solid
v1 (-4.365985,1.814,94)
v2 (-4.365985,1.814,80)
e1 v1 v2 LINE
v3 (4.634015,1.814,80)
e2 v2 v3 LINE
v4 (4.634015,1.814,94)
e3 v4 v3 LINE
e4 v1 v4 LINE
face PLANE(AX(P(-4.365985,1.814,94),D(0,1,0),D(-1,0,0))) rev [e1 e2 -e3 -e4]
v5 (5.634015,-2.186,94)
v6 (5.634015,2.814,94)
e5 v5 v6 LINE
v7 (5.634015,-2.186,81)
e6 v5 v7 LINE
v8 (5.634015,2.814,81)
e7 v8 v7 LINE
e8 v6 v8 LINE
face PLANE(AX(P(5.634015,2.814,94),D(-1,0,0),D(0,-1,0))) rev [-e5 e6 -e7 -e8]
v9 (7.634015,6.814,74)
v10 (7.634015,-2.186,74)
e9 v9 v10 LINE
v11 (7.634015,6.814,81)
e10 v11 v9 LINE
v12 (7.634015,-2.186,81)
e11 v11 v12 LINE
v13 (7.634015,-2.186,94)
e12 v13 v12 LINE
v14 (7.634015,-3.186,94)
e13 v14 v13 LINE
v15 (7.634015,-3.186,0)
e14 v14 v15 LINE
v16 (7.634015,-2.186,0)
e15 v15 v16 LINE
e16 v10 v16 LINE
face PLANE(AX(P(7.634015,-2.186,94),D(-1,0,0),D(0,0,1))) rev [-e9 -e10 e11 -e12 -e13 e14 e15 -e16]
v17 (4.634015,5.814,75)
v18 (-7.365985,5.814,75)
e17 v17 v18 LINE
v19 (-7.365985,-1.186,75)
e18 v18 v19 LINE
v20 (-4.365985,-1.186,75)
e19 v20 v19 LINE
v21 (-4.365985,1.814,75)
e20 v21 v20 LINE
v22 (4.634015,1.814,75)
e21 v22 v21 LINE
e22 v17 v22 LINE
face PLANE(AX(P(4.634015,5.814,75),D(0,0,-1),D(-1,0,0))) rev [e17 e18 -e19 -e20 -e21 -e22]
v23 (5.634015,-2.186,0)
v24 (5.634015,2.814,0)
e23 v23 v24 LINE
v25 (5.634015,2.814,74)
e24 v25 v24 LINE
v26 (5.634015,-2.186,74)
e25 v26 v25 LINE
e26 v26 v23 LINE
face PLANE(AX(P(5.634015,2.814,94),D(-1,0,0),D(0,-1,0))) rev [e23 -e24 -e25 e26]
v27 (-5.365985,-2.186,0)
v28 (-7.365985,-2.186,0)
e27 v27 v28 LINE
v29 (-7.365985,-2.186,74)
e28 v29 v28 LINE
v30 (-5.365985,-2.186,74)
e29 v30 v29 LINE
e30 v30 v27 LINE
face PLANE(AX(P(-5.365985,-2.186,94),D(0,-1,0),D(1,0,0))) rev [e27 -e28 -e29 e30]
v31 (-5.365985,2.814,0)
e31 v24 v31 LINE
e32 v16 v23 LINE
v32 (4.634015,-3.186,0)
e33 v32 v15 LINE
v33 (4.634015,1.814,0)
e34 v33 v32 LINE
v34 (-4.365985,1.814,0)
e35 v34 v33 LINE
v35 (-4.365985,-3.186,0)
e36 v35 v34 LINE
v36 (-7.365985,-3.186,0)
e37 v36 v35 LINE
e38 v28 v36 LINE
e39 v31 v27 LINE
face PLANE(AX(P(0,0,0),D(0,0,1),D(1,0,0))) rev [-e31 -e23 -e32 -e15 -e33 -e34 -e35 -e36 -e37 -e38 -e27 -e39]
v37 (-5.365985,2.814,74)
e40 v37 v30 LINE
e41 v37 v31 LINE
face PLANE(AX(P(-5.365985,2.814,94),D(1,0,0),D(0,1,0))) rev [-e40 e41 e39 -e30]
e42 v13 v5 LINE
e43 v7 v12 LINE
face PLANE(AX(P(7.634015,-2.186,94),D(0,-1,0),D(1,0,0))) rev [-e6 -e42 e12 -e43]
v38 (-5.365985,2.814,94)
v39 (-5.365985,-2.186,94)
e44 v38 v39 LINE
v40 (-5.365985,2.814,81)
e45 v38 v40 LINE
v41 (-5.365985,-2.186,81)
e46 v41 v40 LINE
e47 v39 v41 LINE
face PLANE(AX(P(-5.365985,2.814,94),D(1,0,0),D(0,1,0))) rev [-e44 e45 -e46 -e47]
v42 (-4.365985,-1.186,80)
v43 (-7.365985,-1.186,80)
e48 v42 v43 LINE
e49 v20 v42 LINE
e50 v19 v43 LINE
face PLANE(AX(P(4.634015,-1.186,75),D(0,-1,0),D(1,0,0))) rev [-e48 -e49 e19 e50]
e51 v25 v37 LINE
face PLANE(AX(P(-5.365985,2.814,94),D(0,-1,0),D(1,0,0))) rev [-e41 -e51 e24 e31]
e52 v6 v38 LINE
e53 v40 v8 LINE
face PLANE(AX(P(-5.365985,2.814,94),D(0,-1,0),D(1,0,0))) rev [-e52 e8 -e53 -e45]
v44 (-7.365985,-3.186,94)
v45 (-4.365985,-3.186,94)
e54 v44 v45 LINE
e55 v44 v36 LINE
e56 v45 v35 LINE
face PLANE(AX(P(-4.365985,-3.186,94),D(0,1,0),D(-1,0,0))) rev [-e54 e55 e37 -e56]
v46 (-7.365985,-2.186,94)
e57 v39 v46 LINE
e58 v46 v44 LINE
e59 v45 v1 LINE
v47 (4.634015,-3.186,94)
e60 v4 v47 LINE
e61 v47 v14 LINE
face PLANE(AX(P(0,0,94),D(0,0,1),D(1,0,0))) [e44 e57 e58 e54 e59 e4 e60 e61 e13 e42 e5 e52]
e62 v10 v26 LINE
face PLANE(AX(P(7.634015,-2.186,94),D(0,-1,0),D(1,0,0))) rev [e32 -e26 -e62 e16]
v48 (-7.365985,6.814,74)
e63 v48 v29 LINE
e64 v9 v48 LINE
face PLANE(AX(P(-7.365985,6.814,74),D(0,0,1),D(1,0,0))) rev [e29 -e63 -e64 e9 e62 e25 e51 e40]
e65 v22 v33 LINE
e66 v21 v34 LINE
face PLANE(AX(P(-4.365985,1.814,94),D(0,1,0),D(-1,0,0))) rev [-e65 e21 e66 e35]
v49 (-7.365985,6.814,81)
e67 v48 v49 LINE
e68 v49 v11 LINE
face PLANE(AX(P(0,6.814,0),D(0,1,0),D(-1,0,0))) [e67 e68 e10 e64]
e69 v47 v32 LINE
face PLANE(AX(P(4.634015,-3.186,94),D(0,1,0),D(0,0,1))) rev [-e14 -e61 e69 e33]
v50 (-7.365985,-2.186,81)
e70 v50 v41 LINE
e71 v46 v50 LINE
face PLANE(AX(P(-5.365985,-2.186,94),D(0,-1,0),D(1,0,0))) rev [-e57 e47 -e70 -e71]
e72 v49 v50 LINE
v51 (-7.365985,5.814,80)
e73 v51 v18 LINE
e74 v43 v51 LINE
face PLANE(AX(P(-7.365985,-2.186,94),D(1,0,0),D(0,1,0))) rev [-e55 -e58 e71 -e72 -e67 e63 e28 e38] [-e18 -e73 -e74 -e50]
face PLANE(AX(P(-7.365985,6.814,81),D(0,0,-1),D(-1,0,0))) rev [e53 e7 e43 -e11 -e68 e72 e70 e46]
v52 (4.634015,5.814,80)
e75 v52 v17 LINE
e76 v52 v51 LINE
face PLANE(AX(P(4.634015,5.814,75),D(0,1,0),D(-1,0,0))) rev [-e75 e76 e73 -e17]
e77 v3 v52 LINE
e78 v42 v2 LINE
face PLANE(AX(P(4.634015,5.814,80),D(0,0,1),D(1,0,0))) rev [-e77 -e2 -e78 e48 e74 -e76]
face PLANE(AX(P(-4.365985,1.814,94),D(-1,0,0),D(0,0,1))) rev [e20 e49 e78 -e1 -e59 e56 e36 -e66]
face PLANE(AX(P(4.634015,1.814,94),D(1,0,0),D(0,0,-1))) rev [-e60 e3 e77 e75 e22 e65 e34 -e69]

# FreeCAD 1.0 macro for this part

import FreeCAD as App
import Part
import Sketcher

V = App.Vector
Q = App.Units.Quantity


def add_polygon(sketch, points):
    """Adds a closed chain of lines whose ends are joined by coincident constraints."""
    first, n = sketch.GeometryCount, len(points)
    for a, b in zip(points, points[1:] + points[:1]):
        sketch.addGeometry(Part.LineSegment(App.Vector(*a, 0), App.Vector(*b, 0)), False)
    for i in range(n):
        sketch.addConstraint(Sketcher.Constraint("Coincident", first + i, 2, first + (i + 1) % n, 1))

doc = App.newDocument("Part")
body = doc.addObject("PartDesign::Body", "Body")

# Sketch on XY plane
sketch1 = body.newObject("Sketcher::SketchObject", "Sketch")
sketch1.AttachmentSupport = (doc.getObject("XY_Plane"), [""])
sketch1.MapMode = "FlatFace"
add_polygon(sketch1, [(-5.4, -2.2), (-7.4, -2.2), (-7.4, -3.2), (-4.4, -3.2), (-4.4, 1.8), (4.6, 1.8), (4.6, -3.2), (7.6, -3.2), (7.6, -2.2), (5.6, -2.2), (5.6, 2.8), (-5.4, 2.8)])  # lines 0-11
sketch1.addConstraint([
    Sketcher.Constraint("Horizontal", 0),
    Sketcher.Constraint("Vertical", 1),
    Sketcher.Constraint("Horizontal", 2),
    Sketcher.Constraint("Vertical", 3),
    Sketcher.Constraint("Horizontal", 4),
    Sketcher.Constraint("Vertical", 5),
    Sketcher.Constraint("Horizontal", 6),
    Sketcher.Constraint("Vertical", 7),
    Sketcher.Constraint("Horizontal", 8),
    Sketcher.Constraint("Vertical", 9),
    Sketcher.Constraint("Horizontal", 10),
    Sketcher.Constraint("Vertical", 11),
    Sketcher.Constraint("Horizontal", 2, 2, 5, 2),
    Sketcher.Constraint("Horizontal", 0, 2, 7, 2),
    Sketcher.Constraint("Equal", 2, 6),
    Sketcher.Constraint("Equal", 0, 8),
    Sketcher.Constraint("Equal", 5, 9),
    Sketcher.Constraint("DistanceX", 0, 2, 0, 1, Q("2 mm")),
    Sketcher.Constraint("DistanceX", 2, 1, 2, 2, Q("3 mm")),
    Sketcher.Constraint("DistanceX", 4, 1, 4, 2, Q("9 mm")),
    Sketcher.Constraint("DistanceY", 1, 2, 1, 1, Q("1 mm")),
    Sketcher.Constraint("DistanceY", 3, 1, 3, 2, Q("5 mm")),
    Sketcher.Constraint("DistanceY", 0, 2, -1, 1, Q("2.186 mm")),
    Sketcher.Constraint("DistanceX", 0, 2, -1, 1, Q("7.365985 mm")),
])
pad1 = body.newObject("PartDesign::Pad", "Pad")
pad1.Profile = sketch1
pad1.Length = 94

# Sketch on XZ plane
sketch2 = body.newObject("Sketcher::SketchObject", "Sketch001")
sketch2.AttachmentSupport = (doc.getObject("XZ_Plane"), [""])
sketch2.MapMode = "FlatFace"
sketch2.AttachmentOffset = App.Placement(V(0, 0, 2.186), App.Rotation())
add_polygon(sketch2, [(-7, 74), (-7, 81), (8, 81), (8, 74)])  # lines 0-3
sketch2.addConstraint([
    Sketcher.Constraint("Vertical", 0),
    Sketcher.Constraint("Horizontal", 1),
    Sketcher.Constraint("Vertical", 2),
    Sketcher.Constraint("Horizontal", 3),
    Sketcher.Constraint("DistanceX", 1, 1, 1, 2, Q("15 mm")),
    Sketcher.Constraint("DistanceY", 0, 1, 0, 2, Q("7 mm")),
    Sketcher.Constraint("DistanceY", -1, 1, 0, 2, Q("81 mm")),
    Sketcher.Constraint("DistanceX", 0, 2, -1, 1, Q("7.365985 mm")),
])
pad2 = body.newObject("PartDesign::Pad", "Pad001")
pad2.Profile = sketch2
pad2.Length = 9
pad2.Reversed = True

# Sketch on XZ plane
sketch3 = body.newObject("Sketcher::SketchObject", "Sketch002")
sketch3.AttachmentSupport = (doc.getObject("XZ_Plane"), [""])
sketch3.MapMode = "FlatFace"
sketch3.AttachmentOffset = App.Placement(V(0, 0, 2.186), App.Rotation())
add_polygon(sketch3, [(-4, 81), (-4, 74), (5, 74), (5, 81)])  # lines 0-3
sketch3.addConstraint([
    Sketcher.Constraint("Vertical", 0),
    Sketcher.Constraint("Horizontal", 1),
    Sketcher.Constraint("Vertical", 2),
    Sketcher.Constraint("Horizontal", 3),
    Sketcher.Constraint("DistanceX", 1, 1, 1, 2, Q("9 mm")),
    Sketcher.Constraint("DistanceY", 0, 2, 0, 1, Q("7 mm")),
    Sketcher.Constraint("DistanceY", -1, 1, 0, 2, Q("74 mm")),
    Sketcher.Constraint("DistanceX", 0, 2, -1, 1, Q("4.365985 mm")),
])
pocket1 = body.newObject("PartDesign::Pocket", "Pocket")
pocket1.Profile = sketch3
pocket1.Length = 4

# Sketch on YZ plane
sketch4 = body.newObject("Sketcher::SketchObject", "Sketch003")
sketch4.AttachmentSupport = (doc.getObject("YZ_Plane"), [""])
sketch4.MapMode = "FlatFace"
sketch4.AttachmentOffset = App.Placement(V(0, 0, -7.365985), App.Rotation())
add_polygon(sketch4, [(6, 75), (-1, 75), (-1, 80), (6, 80)])  # lines 0-3
sketch4.addConstraint([
    Sketcher.Constraint("Horizontal", 0),
    Sketcher.Constraint("Vertical", 1),
    Sketcher.Constraint("Horizontal", 2),
    Sketcher.Constraint("Vertical", 3),
    Sketcher.Constraint("DistanceX", 0, 2, 0, 1, Q("7 mm")),
    Sketcher.Constraint("DistanceY", 1, 1, 1, 2, Q("5 mm")),
    Sketcher.Constraint("DistanceY", -1, 1, 0, 2, Q("75 mm")),
    Sketcher.Constraint("DistanceX", 0, 2, -1, 1, Q("1.186 mm")),
])
pocket2 = body.newObject("PartDesign::Pocket", "Pocket001")
pocket2.Profile = sketch4
pocket2.Length = 12
pocket2.Reversed = True

doc.recompute()
